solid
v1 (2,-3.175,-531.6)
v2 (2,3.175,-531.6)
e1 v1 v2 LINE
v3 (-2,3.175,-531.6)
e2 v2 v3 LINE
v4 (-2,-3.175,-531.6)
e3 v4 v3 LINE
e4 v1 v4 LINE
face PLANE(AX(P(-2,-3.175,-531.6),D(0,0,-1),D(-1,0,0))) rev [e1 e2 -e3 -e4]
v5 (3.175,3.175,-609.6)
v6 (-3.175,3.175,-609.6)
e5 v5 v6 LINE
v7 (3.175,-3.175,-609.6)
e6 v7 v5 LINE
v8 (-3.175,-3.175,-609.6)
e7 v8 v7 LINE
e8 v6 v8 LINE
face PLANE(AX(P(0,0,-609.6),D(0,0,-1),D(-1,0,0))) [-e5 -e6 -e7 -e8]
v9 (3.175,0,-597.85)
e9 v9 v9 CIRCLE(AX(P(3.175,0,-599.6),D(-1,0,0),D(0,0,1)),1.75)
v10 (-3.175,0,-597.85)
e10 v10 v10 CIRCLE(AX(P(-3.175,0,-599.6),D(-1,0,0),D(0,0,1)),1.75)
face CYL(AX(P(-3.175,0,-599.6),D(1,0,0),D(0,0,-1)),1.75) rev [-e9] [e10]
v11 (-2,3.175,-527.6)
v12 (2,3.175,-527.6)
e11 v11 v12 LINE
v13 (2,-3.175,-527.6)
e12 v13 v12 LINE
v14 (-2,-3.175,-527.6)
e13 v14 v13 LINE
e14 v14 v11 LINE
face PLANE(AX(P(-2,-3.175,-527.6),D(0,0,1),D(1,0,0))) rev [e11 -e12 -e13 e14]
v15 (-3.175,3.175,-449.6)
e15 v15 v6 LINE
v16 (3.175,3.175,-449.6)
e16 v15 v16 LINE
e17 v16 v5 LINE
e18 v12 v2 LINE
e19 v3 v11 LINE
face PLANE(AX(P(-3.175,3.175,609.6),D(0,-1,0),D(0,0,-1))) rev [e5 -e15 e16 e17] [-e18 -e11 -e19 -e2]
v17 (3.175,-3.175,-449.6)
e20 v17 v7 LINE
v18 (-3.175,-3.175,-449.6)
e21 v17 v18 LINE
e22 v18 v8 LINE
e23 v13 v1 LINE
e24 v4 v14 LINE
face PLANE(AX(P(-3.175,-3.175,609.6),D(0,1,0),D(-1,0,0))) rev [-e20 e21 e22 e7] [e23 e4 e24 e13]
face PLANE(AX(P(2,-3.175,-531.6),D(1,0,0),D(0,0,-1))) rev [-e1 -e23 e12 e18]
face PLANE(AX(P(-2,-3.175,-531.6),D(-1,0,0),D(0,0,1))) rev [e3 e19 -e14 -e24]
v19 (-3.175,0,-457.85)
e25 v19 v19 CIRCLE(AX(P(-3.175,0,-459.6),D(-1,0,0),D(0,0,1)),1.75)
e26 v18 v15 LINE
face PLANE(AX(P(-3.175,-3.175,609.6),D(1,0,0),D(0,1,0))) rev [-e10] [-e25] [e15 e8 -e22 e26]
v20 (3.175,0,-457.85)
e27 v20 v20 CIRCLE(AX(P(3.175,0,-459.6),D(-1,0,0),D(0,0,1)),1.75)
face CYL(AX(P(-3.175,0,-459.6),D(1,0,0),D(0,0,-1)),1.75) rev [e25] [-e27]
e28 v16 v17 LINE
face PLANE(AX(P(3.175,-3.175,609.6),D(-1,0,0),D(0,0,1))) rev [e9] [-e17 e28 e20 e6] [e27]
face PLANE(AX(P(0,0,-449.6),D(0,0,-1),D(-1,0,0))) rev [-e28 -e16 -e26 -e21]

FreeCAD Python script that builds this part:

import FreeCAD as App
import Part
import Sketcher
from FreeCAD import Vector

doc = App.newDocument("Part")
body = doc.addObject("PartDesign::Body", "Body")

# Sketch on XY plane
sketch1 = doc.addObject("Sketcher::SketchObject", "Sketch")
body.addObject(sketch1)
sketch1.AttachmentSupport = (doc.XY_Plane, [""])
sketch1.MapMode = "FlatFace"
sketch1.addGeometry(Part.LineSegment(Vector(-3, 3, 0), Vector(-3, -3, 0)), False)
sketch1.addGeometry(Part.LineSegment(Vector(-3, -3, 0), Vector(3, -3, 0)), False)
sketch1.addGeometry(Part.LineSegment(Vector(3, -3, 0), Vector(3, 3, 0)), False)
sketch1.addGeometry(Part.LineSegment(Vector(3, 3, 0), Vector(-3, 3, 0)), False)
sketch1.addConstraint(Sketcher.Constraint("Coincident", 0, 2, 1, 1))
sketch1.addConstraint(Sketcher.Constraint("Coincident", 1, 2, 2, 1))
sketch1.addConstraint(Sketcher.Constraint("Coincident", 2, 2, 3, 1))
sketch1.addConstraint(Sketcher.Constraint("Coincident", 3, 2, 0, 1))
sketch1.addConstraint(Sketcher.Constraint("Vertical", 0))
sketch1.addConstraint(Sketcher.Constraint("Horizontal", 1))
sketch1.addConstraint(Sketcher.Constraint("Vertical", 2))
sketch1.addConstraint(Sketcher.Constraint("Horizontal", 3))
sketch1.addConstraint(Sketcher.Constraint("Symmetric", 0, 2, 2, 2, -1, 1))
sketch1.addConstraint(Sketcher.Constraint("Equal", 3, 0))
sketch1.addConstraint(Sketcher.Constraint("DistanceX", 1, 1, 1, 2, 6.35))
pad1 = doc.addObject("PartDesign::Pad", "Pad")
body.addObject(pad1)
pad1.Profile = sketch1
pad1.Type = "TwoLengths"
pad1.Length = 609.6
pad1.Length2 = 609.6

# Sketch on XY plane
sketch2 = doc.addObject("Sketcher::SketchObject", "Sketch001")
body.addObject(sketch2)
sketch2.AttachmentSupport = (doc.XY_Plane, [""])
sketch2.MapMode = "FlatFace"
sketch2.AttachmentOffset = App.Placement(Vector(0, 0, -449.6), App.Rotation())
sketch2.addGeometry(Part.LineSegment(Vector(4, 4, 0), Vector(4, -4, 0)), False)
sketch2.addGeometry(Part.LineSegment(Vector(4, -4, 0), Vector(-4, -4, 0)), False)
sketch2.addGeometry(Part.LineSegment(Vector(-4, -4, 0), Vector(-4, 4, 0)), False)
sketch2.addGeometry(Part.LineSegment(Vector(-4, 4, 0), Vector(4, 4, 0)), False)
sketch2.addConstraint(Sketcher.Constraint("Coincident", 0, 2, 1, 1))
sketch2.addConstraint(Sketcher.Constraint("Coincident", 1, 2, 2, 1))
sketch2.addConstraint(Sketcher.Constraint("Coincident", 2, 2, 3, 1))
sketch2.addConstraint(Sketcher.Constraint("Coincident", 3, 2, 0, 1))
sketch2.addConstraint(Sketcher.Constraint("Vertical", 0))
sketch2.addConstraint(Sketcher.Constraint("Horizontal", 1))
sketch2.addConstraint(Sketcher.Constraint("Vertical", 2))
sketch2.addConstraint(Sketcher.Constraint("Horizontal", 3))
sketch2.addConstraint(Sketcher.Constraint("Symmetric", 0, 2, 2, 2, -1, 1))
sketch2.addConstraint(Sketcher.Constraint("Equal", 3, 0))
sketch2.addConstraint(Sketcher.Constraint("DistanceX", 1, 2, 1, 1, 7.35))
pocket1 = doc.addObject("PartDesign::Pocket", "Pocket")
body.addObject(pocket1)
pocket1.Profile = sketch2
pocket1.Type = "ThroughAll"
pocket1.Reversed = True

# Sketch on YZ plane
sketch3 = doc.addObject("Sketcher::SketchObject", "Sketch002")
body.addObject(sketch3)
sketch3.AttachmentSupport = (doc.YZ_Plane, [""])
sketch3.MapMode = "FlatFace"
sketch3.AttachmentOffset = App.Placement(Vector(0, 0, 3.175), App.Rotation())
sketch3.addGeometry(Part.Circle(Vector(0, -599.6, 0), Vector(0, 0, 1), 1.8), False)
sketch3.addGeometry(Part.Circle(Vector(0, -459.6, 0), Vector(0, 0, 1), 1.8), False)
sketch3.addConstraint(Sketcher.Constraint("Equal", 0, 1))
sketch3.addConstraint(Sketcher.Constraint("PointOnObject", 0, 3, -2))
sketch3.addConstraint(Sketcher.Constraint("PointOnObject", 1, 3, -2))
sketch3.addConstraint(Sketcher.Constraint("Diameter", 0, 3.5))
sketch3.addConstraint(Sketcher.Constraint("DistanceY", 0, 3, 1, 3, 140.0))
sketch3.addConstraint(Sketcher.Constraint("DistanceY", 0, 3, -1, 1, 599.6))
pocket2 = doc.addObject("PartDesign::Pocket", "Pocket001")
body.addObject(pocket2)
pocket2.Profile = sketch3
pocket2.Type = "ThroughAll"

# Sketch on XZ plane
sketch4 = doc.addObject("Sketcher::SketchObject", "Sketch003")
body.addObject(sketch4)
sketch4.AttachmentSupport = (doc.XZ_Plane, [""])
sketch4.MapMode = "FlatFace"
sketch4.AttachmentOffset = App.Placement(Vector(0, 0, -3.175), App.Rotation())
sketch4.addGeometry(Part.LineSegment(Vector(-2, -531.6, 0), Vector(-2, -527.6, 0)), False)
sketch4.addGeometry(Part.LineSegment(Vector(-2, -527.6, 0), Vector(2, -527.6, 0)), False)
sketch4.addGeometry(Part.LineSegment(Vector(2, -527.6, 0), Vector(2, -531.6, 0)), False)
sketch4.addGeometry(Part.LineSegment(Vector(2, -531.6, 0), Vector(-2, -531.6, 0)), False)
sketch4.addConstraint(Sketcher.Constraint("Coincident", 0, 2, 1, 1))
sketch4.addConstraint(Sketcher.Constraint("Coincident", 1, 2, 2, 1))
sketch4.addConstraint(Sketcher.Constraint("Coincident", 2, 2, 3, 1))
sketch4.addConstraint(Sketcher.Constraint("Coincident", 3, 2, 0, 1))
sketch4.addConstraint(Sketcher.Constraint("Vertical", 0))
sketch4.addConstraint(Sketcher.Constraint("Horizontal", 1))
sketch4.addConstraint(Sketcher.Constraint("Vertical", 2))
sketch4.addConstraint(Sketcher.Constraint("Horizontal", 3))
sketch4.addConstraint(Sketcher.Constraint("Equal", 3, 0))
sketch4.addConstraint(Sketcher.Constraint("DistanceX", 1, 1, 1, 2, 4.0))
sketch4.addConstraint(Sketcher.Constraint("DistanceX", 0, 2, -1, 1, 2.0))
sketch4.addConstraint(Sketcher.Constraint("DistanceY", 0, 2, -1, 1, 527.6))
pocket3 = doc.addObject("PartDesign::Pocket", "Pocket002")
body.addObject(pocket3)
pocket3.Profile = sketch4
pocket3.Type = "ThroughAll"
pocket3.Reversed = True

doc.recompute()
